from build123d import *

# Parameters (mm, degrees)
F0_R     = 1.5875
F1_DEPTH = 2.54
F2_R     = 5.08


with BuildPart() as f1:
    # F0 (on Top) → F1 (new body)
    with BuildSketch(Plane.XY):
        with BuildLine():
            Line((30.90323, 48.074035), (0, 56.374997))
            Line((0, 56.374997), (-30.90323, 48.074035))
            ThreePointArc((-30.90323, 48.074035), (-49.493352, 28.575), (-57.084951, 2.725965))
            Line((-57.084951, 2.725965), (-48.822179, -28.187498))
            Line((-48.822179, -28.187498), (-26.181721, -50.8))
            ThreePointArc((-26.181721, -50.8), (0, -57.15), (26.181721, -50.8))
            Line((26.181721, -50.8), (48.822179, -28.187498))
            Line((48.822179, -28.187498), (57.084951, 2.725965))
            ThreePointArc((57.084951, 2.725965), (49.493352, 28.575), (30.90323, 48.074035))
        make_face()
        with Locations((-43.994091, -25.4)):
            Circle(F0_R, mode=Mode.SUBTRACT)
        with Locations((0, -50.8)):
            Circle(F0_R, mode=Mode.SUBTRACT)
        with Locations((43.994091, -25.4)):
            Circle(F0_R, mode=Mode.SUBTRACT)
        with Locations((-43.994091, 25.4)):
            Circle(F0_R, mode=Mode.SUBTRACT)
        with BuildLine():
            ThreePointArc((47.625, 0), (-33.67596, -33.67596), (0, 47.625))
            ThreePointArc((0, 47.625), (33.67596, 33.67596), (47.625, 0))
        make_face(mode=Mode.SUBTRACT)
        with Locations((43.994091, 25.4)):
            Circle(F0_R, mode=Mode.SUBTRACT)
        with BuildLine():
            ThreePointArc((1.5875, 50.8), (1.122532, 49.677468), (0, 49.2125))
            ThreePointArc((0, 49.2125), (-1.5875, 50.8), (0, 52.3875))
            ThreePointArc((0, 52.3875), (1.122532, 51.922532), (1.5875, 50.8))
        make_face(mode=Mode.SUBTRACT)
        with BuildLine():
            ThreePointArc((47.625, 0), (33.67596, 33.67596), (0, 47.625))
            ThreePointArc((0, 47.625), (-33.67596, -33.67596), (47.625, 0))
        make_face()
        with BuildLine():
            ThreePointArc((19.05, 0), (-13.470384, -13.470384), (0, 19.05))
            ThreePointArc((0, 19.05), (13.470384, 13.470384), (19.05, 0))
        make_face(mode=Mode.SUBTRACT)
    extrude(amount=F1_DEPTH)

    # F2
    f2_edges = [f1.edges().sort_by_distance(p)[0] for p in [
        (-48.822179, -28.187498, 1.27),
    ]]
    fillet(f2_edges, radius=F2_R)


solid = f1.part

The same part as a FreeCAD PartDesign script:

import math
import FreeCAD as App
import Part
import Sketcher

V = App.Vector
Q = App.Units.Quantity


def edges_at(feature, points):
    """Names of the edges that pass closest to the given points."""
    edges = feature.Shape.Edges
    near = lambda p: min(range(len(edges)), key=lambda i: edges[i].distToShape(Part.Vertex(*p))[0])
    return sorted({f"Edge{near(p) + 1}" for p in points})

doc = App.newDocument("Part")
body = doc.addObject("PartDesign::Body", "Body")

# Sketch on XY plane
sketch1 = body.newObject("Sketcher::SketchObject", "Sketch")
sketch1.AttachmentSupport = (doc.getObject("XY_Plane"), [""])
sketch1.MapMode = "FlatFace"
sketch1.addGeometry(Part.LineSegment(V(30.90323, 48.074035, 0), V(0, 56.374997, 0)), False)
sketch1.addGeometry(Part.LineSegment(V(0, 56.374997, 0), V(-30.90323, 48.074035, 0)), False)
sketch1.addGeometry(Part.ArcOfCircle(Part.Circle(V(-0.000002, 0.000001, 0), V(0, 0, 1), 57.149998), math.radians(122.733954), math.radians(177.266045)), False)
sketch1.addGeometry(Part.LineSegment(V(-57.084951, 2.725965, 0), V(-48.822179, -28.187498, 0)), False)
sketch1.addGeometry(Part.LineSegment(V(-48.822179, -28.187498, 0), V(-26.181721, -50.8, 0)), False)
sketch1.addGeometry(Part.ArcOfCircle(Part.Circle(V(0, 0.000001, 0), V(0, 0, 1), 57.150001), math.radians(-117.266044), math.radians(-62.733956)), False)
sketch1.addGeometry(Part.LineSegment(V(26.181721, -50.8, 0), V(48.822179, -28.187498, 0)), False)
sketch1.addGeometry(Part.LineSegment(V(48.822179, -28.187498, 0), V(57.084951, 2.725965, 0)), False)
sketch1.addGeometry(Part.ArcOfCircle(Part.Circle(V(0.000002, 0.000001, 0), V(0, 0, 1), 57.149998), math.radians(2.733955), math.radians(57.266046)), False)
sketch1.addGeometry(Part.Circle(V(-43.994091, -25.4, 0), V(0, 0, 1), 1.5875), False)
sketch1.addGeometry(Part.Circle(V(0, -50.8, 0), V(0, 0, 1), 1.5875), False)
sketch1.addGeometry(Part.Circle(V(43.994091, -25.4, 0), V(0, 0, 1), 1.5875), False)
sketch1.addGeometry(Part.Circle(V(-43.994091, 25.4, 0), V(0, 0, 1), 1.5875), False)
sketch1.addGeometry(Part.ArcOfCircle(Part.Circle(V(0, 50.8, 0), V(0, 0, 1), 1.5875), math.radians(0.000002), math.radians(89.999998)), False)
sketch1.addGeometry(Part.ArcOfCircle(Part.Circle(V(0, 50.8, 0), V(0, 0, 1), 1.5875), math.radians(-89.999998), math.radians(-0.000002)), False)
sketch1.addGeometry(Part.ArcOfCircle(Part.Circle(V(0, 50.8, 0), V(0, 0, 1), 1.5875), math.radians(90), math.radians(270)), False)
sketch1.addGeometry(Part.ArcOfCircle(Part.Circle(V(-0.000001, -0.000001, 0), V(0, 0, 1), 19.050001), math.radians(0.000002), math.radians(89.999998)), False)
sketch1.addGeometry(Part.ArcOfCircle(Part.Circle(V(0, 0, 0), V(0, 0, 1), 19.05), math.radians(90), math.radians(360)), False)
sketch1.addGeometry(Part.Circle(V(43.994091, 25.4, 0), V(0, 0, 1), 1.5875), False)
sketch1.addConstraint(Sketcher.Constraint("Coincident", 0, 2, 1, 1))
sketch1.addConstraint(Sketcher.Constraint("Coincident", 1, 2, 2, 1))
sketch1.addConstraint(Sketcher.Constraint("Coincident", 2, 2, 3, 1))
sketch1.addConstraint(Sketcher.Constraint("Coincident", 3, 2, 4, 1))
sketch1.addConstraint(Sketcher.Constraint("Coincident", 4, 2, 5, 1))
sketch1.addConstraint(Sketcher.Constraint("Coincident", 5, 2, 6, 1))
sketch1.addConstraint(Sketcher.Constraint("Coincident", 6, 2, 7, 1))
sketch1.addConstraint(Sketcher.Constraint("Coincident", 7, 2, 8, 1))
sketch1.addConstraint(Sketcher.Constraint("Coincident", 8, 2, 0, 1))
sketch1.addConstraint(Sketcher.Constraint("Tangent", 13, 1, 14, 2))
sketch1.addConstraint(Sketcher.Constraint("Tangent", 14, 1, 15, 2))
sketch1.addConstraint(Sketcher.Constraint("Tangent", 15, 1, 13, 2))
sketch1.addConstraint(Sketcher.Constraint("Tangent", 16, 1, 17, 2))
sketch1.addConstraint(Sketcher.Constraint("Coincident", 17, 1, 16, 2))
sketch1.addConstraint(Sketcher.Constraint("Coincident", 2, 3, -1, 1))
sketch1.addConstraint(Sketcher.Constraint("Coincident", 5, 3, -1, 1))
sketch1.addConstraint(Sketcher.Constraint("Coincident", 8, 3, -1, 1))
sketch1.addConstraint(Sketcher.Constraint("Coincident", 16, 3, -1, 1))
sketch1.addConstraint(Sketcher.Constraint("Equal", 2, 8))
sketch1.addConstraint(Sketcher.Constraint("Equal", 9, 10))
sketch1.addConstraint(Sketcher.Constraint("Equal", 10, 11))
sketch1.addConstraint(Sketcher.Constraint("Equal", 11, 12))
sketch1.addConstraint(Sketcher.Constraint("Equal", 12, 13))
sketch1.addConstraint(Sketcher.Constraint("Equal", 15, 18))
sketch1.addConstraint(Sketcher.Constraint("Symmetric", 11, 3, 12, 3, -1, 1))
sketch1.addConstraint(Sketcher.Constraint("Symmetric", 10, 3, 13, 3, -1, 1))
sketch1.addConstraint(Sketcher.Constraint("Symmetric", 9, 3, 18, 3, -1, 1))
sketch1.addConstraint(Sketcher.Constraint("Symmetric", 9, 3, 11, 3, -2))
sketch1.addConstraint(Sketcher.Constraint("Symmetric", 3, 2, 6, 2, -2))
sketch1.addConstraint(Sketcher.Constraint("PointOnObject", 10, 3, -2))
sketch1.addConstraint(Sketcher.Constraint("PointOnObject", 0, 2, -2))
sketch1.addConstraint(Sketcher.Constraint("PointOnObject", 14, 1, -2))
sketch1.addConstraint(Sketcher.Constraint("PointOnObject", 15, 1, -2))
sketch1.addConstraint(Sketcher.Constraint("PointOnObject", 16, 1, -1))
sketch1.addConstraint(Sketcher.Constraint("PointOnObject", 17, 1, -2))
sketch1.addConstraint(Sketcher.Constraint("Horizontal", 10, 3, 4, 2))
sketch1.addConstraint(Sketcher.Constraint("Horizontal", 4, 2, 5, 2))
sketch1.addConstraint(Sketcher.Constraint("Horizontal", 2, 2, 7, 2))
sketch1.addConstraint(Sketcher.Constraint("Horizontal", 1, 2, 8, 2))
sketch1.addConstraint(Sketcher.Constraint("Horizontal", 15, 3, 13, 1))
sketch1.addConstraint(Sketcher.Constraint("Equal", 1, 3))
sketch1.addConstraint(Sketcher.Constraint("Equal", 3, 4))
sketch1.addConstraint(Sketcher.Constraint("Radius", 2, Q("2.2499999 in")))
sketch1.addConstraint(Sketcher.Constraint("Radius", 5, Q("2.25 in")))
sketch1.addConstraint(Sketcher.Constraint("Radius", 16, Q("0.75 in")))
sketch1.addConstraint(Sketcher.Constraint("Diameter", 9, Q("0.125 in")))
sketch1.addConstraint(Sketcher.Constraint("DistanceY", 9, 3, -1, 1, Q("1 in")))
sketch1.addConstraint(Sketcher.Constraint("DistanceY", 10, 3, -1, 1, Q("2 in")))
sketch1.addConstraint(Sketcher.Constraint("DistanceY", 3, 2, -1, 1, 28.187498))
sketch1.addConstraint(Sketcher.Constraint("Distance", 0, 31.998681))
sketch1.addConstraint(Sketcher.Constraint("DistanceX", 9, 3, -1, 1, 43.994091))
sketch1.addConstraint(Sketcher.Constraint("DistanceX", 1, 2, -1, 1, 30.90323))
pad1 = body.newObject("PartDesign::Pad", "Pad")
pad1.Profile = sketch1
pad1.Length = Q("0.1 in")
doc.recompute()

fillet = body.newObject("PartDesign::Fillet", "Fillet")
fillet.Base = (pad1, edges_at(pad1, [(-48.822, -28.187, 1.27)]))
fillet.Radius = Q("0.2 in")

doc.recompute()
